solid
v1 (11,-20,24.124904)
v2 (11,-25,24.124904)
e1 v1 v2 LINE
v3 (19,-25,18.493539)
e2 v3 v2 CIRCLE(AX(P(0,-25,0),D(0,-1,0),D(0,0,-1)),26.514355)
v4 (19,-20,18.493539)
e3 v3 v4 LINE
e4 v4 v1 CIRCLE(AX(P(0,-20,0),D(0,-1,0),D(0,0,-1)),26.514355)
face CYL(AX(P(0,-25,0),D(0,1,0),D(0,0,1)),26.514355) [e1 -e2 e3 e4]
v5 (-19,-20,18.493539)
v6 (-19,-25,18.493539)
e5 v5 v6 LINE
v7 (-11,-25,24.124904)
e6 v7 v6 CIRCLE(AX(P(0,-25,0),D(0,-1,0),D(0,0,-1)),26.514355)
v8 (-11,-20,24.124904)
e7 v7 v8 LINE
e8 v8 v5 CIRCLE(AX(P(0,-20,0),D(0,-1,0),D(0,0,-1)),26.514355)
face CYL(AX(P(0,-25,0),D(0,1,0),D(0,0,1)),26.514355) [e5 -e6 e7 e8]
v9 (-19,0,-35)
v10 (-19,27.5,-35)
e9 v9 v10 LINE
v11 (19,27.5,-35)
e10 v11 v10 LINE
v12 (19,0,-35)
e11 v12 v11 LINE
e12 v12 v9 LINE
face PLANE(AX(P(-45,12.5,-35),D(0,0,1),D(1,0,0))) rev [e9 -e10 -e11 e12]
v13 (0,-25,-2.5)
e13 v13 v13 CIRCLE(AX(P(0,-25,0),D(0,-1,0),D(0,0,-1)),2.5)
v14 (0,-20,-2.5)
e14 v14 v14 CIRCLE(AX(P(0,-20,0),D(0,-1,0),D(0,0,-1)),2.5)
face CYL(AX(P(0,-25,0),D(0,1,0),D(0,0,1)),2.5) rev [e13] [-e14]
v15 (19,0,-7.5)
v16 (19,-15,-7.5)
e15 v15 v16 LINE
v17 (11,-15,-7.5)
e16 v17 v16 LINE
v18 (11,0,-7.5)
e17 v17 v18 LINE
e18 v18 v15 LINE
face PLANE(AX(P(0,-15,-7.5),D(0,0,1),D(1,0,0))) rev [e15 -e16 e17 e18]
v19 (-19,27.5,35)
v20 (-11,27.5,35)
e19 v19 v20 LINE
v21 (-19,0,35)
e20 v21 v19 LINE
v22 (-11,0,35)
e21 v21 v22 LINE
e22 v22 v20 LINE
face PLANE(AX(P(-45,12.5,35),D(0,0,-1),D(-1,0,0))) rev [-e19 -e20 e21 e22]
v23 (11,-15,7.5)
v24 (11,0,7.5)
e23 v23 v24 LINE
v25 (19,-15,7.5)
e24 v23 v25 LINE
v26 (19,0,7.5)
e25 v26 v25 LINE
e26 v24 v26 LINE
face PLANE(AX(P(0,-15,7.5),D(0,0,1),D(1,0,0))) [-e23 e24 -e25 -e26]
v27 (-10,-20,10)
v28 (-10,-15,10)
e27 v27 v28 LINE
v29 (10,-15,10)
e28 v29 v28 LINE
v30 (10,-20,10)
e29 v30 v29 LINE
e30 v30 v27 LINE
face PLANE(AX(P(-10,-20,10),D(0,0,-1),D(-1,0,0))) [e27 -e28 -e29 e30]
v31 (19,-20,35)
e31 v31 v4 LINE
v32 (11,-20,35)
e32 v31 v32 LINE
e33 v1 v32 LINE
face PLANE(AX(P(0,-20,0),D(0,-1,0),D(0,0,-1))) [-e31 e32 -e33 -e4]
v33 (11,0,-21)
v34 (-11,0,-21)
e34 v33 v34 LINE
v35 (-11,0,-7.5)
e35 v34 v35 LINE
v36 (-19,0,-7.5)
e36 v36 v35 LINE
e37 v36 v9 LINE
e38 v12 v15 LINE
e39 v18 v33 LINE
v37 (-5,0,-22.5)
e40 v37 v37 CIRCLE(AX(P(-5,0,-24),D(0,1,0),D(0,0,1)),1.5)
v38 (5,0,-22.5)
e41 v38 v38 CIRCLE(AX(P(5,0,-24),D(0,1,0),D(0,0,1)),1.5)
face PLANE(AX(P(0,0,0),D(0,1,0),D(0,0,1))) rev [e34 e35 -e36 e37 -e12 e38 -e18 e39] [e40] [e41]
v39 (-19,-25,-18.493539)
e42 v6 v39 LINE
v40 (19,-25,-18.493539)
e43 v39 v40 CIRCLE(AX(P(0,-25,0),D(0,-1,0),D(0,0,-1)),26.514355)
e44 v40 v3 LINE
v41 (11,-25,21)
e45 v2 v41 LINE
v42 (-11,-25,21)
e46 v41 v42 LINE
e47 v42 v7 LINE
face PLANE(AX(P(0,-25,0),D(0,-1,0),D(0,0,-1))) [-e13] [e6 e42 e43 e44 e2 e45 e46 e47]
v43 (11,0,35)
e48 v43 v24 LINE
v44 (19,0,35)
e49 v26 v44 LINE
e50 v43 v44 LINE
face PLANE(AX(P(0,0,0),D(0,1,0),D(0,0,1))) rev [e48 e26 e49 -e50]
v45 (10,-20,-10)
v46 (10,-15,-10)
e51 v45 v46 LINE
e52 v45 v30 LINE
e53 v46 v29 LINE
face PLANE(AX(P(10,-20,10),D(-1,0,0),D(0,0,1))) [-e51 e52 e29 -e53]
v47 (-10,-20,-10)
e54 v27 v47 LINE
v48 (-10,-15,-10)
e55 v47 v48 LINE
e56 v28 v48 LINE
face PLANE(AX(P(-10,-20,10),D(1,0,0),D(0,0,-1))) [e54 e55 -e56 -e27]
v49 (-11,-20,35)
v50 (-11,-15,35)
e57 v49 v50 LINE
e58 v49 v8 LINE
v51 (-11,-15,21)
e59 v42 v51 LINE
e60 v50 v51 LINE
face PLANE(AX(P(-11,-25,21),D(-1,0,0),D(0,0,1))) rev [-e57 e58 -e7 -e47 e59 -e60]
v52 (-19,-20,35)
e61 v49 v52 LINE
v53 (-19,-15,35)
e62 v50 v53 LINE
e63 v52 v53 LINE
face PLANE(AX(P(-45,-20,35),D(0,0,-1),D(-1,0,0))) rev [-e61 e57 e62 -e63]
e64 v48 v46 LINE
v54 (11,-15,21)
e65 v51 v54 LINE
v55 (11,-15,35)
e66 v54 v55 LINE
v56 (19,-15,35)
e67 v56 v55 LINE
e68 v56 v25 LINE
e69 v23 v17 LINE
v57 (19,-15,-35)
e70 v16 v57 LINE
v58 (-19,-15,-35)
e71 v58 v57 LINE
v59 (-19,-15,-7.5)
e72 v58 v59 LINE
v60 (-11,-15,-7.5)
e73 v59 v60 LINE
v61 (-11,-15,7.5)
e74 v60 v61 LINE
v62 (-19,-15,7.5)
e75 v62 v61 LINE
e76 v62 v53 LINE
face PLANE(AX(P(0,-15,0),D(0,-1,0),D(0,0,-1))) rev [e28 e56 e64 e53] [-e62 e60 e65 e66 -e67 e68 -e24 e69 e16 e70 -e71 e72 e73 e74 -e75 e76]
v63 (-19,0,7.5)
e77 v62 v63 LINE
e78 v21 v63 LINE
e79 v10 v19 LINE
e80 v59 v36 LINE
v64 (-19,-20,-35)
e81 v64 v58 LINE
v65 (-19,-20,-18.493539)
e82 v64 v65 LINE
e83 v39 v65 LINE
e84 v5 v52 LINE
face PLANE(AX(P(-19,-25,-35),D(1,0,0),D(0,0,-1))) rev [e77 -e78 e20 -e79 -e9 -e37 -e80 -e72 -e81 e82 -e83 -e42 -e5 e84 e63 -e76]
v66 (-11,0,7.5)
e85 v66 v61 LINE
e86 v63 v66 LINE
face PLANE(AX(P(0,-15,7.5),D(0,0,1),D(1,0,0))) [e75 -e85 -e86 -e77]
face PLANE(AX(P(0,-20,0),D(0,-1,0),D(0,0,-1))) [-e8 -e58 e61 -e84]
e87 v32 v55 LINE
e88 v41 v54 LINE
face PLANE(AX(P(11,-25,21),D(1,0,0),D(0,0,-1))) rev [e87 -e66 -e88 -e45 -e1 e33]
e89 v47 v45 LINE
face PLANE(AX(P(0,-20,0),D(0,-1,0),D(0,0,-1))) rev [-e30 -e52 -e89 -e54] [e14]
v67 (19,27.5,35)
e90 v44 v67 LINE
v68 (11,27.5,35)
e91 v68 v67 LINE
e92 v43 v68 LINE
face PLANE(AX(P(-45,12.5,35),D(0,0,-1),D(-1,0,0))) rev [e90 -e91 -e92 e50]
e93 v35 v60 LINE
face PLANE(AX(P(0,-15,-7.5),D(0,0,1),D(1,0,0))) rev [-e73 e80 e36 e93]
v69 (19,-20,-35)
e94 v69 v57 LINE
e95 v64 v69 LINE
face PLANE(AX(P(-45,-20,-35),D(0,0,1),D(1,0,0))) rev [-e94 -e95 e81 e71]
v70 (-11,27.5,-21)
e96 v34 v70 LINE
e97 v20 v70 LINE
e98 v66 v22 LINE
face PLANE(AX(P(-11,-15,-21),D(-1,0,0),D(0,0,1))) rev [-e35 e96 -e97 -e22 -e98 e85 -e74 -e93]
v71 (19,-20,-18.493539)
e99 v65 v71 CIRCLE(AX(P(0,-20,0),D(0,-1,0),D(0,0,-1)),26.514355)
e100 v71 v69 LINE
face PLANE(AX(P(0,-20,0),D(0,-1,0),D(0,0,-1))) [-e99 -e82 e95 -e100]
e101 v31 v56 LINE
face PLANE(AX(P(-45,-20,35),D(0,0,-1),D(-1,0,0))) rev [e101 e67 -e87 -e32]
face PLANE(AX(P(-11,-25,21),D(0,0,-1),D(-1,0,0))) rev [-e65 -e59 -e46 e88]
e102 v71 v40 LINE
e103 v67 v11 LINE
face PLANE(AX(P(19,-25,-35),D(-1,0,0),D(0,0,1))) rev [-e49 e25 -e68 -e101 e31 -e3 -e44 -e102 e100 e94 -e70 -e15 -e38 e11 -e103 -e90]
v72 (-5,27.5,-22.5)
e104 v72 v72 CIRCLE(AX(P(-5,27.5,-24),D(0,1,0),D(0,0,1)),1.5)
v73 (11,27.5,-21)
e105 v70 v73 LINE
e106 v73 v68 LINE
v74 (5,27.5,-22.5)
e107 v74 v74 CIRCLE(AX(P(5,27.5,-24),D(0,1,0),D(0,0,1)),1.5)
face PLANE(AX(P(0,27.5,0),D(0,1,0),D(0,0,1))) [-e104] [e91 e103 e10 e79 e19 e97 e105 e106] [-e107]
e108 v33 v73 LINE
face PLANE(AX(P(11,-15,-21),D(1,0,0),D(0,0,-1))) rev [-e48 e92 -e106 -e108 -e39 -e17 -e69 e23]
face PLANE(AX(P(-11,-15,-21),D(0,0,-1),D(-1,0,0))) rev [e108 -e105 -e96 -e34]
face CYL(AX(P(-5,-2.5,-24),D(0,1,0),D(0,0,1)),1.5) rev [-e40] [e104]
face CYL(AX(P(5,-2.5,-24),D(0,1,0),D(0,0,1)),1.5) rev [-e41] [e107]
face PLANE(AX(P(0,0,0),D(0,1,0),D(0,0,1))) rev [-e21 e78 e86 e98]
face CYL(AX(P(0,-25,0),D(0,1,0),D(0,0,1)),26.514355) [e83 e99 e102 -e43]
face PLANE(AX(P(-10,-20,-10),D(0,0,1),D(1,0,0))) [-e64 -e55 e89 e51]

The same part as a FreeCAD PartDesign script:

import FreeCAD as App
import Part
import Sketcher

V = App.Vector
Q = App.Units.Quantity


def add_polygon(sketch, points):
    """Adds a closed chain of lines whose ends are joined by coincident constraints."""
    first, n = sketch.GeometryCount, len(points)
    for a, b in zip(points, points[1:] + points[:1]):
        sketch.addGeometry(Part.LineSegment(App.Vector(*a, 0), App.Vector(*b, 0)), False)
    for i in range(n):
        sketch.addConstraint(Sketcher.Constraint("Coincident", first + i, 2, first + (i + 1) % n, 1))

doc = App.newDocument("Part")
body = doc.addObject("PartDesign::Body", "Body")

# Sketch on XZ plane
sketch1 = body.newObject("Sketcher::SketchObject", "Sketch")
sketch1.AttachmentSupport = (doc.getObject("XZ_Plane"), [""])
sketch1.MapMode = "FlatFace"
add_polygon(sketch1, [(-45, -35), (-45, 35), (45, 35), (45, -35)])  # lines 0-3
sketch1.addConstraint([
    Sketcher.Constraint("Vertical", 0),
    Sketcher.Constraint("Horizontal", 1),
    Sketcher.Constraint("Vertical", 2),
    Sketcher.Constraint("Horizontal", 3),
    Sketcher.Constraint("Symmetric", 0, 2, 2, 2, -1, 1),
    Sketcher.Constraint("DistanceX", 1, 1, 1, 2, Q("90 mm")),
    Sketcher.Constraint("DistanceY", 0, 1, 0, 2, Q("70 mm")),
])
pad1 = body.newObject("PartDesign::Pad", "Pad")
pad1.Profile = sketch1
pad1.Length = 12.5
pad1.Reversed = True

# Sketch on XZ plane
sketch2 = body.newObject("Sketcher::SketchObject", "Sketch001")
sketch2.AttachmentSupport = (doc.getObject("XZ_Plane"), [""])
sketch2.MapMode = "FlatFace"
add_polygon(sketch2, [(-45, 8), (-45, -8), (45, -8), (45, 8)])  # lines 0-3
sketch2.addConstraint([
    Sketcher.Constraint("Vertical", 0),
    Sketcher.Constraint("Horizontal", 1),
    Sketcher.Constraint("Vertical", 2),
    Sketcher.Constraint("Horizontal", 3),
    Sketcher.Constraint("Symmetric", 0, 2, 2, 2, -1, 1),
    Sketcher.Constraint("DistanceX", 1, 1, 1, 2, Q("90 mm")),
    Sketcher.Constraint("DistanceY", 0, 2, 0, 1, Q("15 mm")),
])
pad2 = body.newObject("PartDesign::Pad", "Pad001")
pad2.Profile = sketch2
pad2.Length = 15

# Sketch on XZ plane
sketch3 = body.newObject("Sketcher::SketchObject", "Sketch002")
sketch3.AttachmentSupport = (doc.getObject("XZ_Plane"), [""])
sketch3.MapMode = "FlatFace"
sketch3.AttachmentOffset = App.Placement(V(0, 0, -12.5), App.Rotation())
sketch3.addGeometry(Part.Circle(V(-5, -24, 0), V(0, 0, 1), 1.2), False)  # 0
sketch3.addGeometry(Part.Circle(V(5, -24, 0), V(0, 0, 1), 1.2), False)  # 1
sketch3.addGeometry(Part.Circle(V(5, 24, 0), V(0, 0, 1), 1.2), False)  # 2
sketch3.addGeometry(Part.Circle(V(-5, 24, 0), V(0, 0, 1), 1.2), False)  # 3
add_polygon(sketch3, [(-11, -21), (-11, 21), (11, 21), (11, -21)])  # lines 4-7
sketch3.addConstraint([
    Sketcher.Constraint("Vertical", 4),
    Sketcher.Constraint("Horizontal", 5),
    Sketcher.Constraint("Vertical", 6),
    Sketcher.Constraint("Horizontal", 7),
    Sketcher.Constraint("Equal", 0, 1),
    Sketcher.Constraint("Equal", 1, 2),
    Sketcher.Constraint("Equal", 2, 3),
    Sketcher.Constraint("Symmetric", 0, 3, 2, 3, -1, 1),
    Sketcher.Constraint("Symmetric", 1, 3, 3, 3, -1, 1),
    Sketcher.Constraint("Symmetric", 4, 2, 6, 2, -1, 1),
    Sketcher.Constraint("Symmetric", 0, 3, 1, 3, -2),
    Sketcher.Constraint("Diameter", 0, Q("2.5 mm")),
    Sketcher.Constraint("DistanceX", 5, 1, 5, 2, Q("22 mm")),
    Sketcher.Constraint("DistanceY", 4, 1, 4, 2, Q("42 mm")),
    Sketcher.Constraint("DistanceX", 0, 3, -1, 1, Q("5 mm")),
    Sketcher.Constraint("DistanceY", 0, 3, -1, 1, Q("24 mm")),
])
pocket1 = body.newObject("PartDesign::Pocket", "Pocket")
pocket1.Profile = sketch3
pocket1.Type = "ThroughAll"
pocket1.Reversed = True

# Sketch on XZ plane
sketch4 = body.newObject("Sketcher::SketchObject", "Sketch003")
sketch4.AttachmentSupport = (doc.getObject("XZ_Plane"), [""])
sketch4.MapMode = "FlatFace"
sketch4.AttachmentOffset = App.Placement(V(0, 0, 15), App.Rotation())
add_polygon(sketch4, [(-45, 35), (-45, -35), (45, -35), (45, 35)])  # lines 0-3
add_polygon(sketch4, [(10, -10), (-10, -10), (-10, 10), (10, 10)])  # lines 4-7
sketch4.addConstraint([
    Sketcher.Constraint("Vertical", 0),
    Sketcher.Constraint("Horizontal", 1),
    Sketcher.Constraint("Vertical", 2),
    Sketcher.Constraint("Horizontal", 3),
    Sketcher.Constraint("Horizontal", 4),
    Sketcher.Constraint("Vertical", 5),
    Sketcher.Constraint("Horizontal", 6),
    Sketcher.Constraint("Vertical", 7),
    Sketcher.Constraint("Symmetric", 0, 2, 2, 2, -1, 1),
    Sketcher.Constraint("Symmetric", 4, 2, 6, 2, -1, 1),
    Sketcher.Constraint("Equal", 6, 5),
    Sketcher.Constraint("DistanceX", 1, 1, 1, 2, Q("90 mm")),
    Sketcher.Constraint("DistanceX", 4, 2, 4, 1, Q("20 mm")),
    Sketcher.Constraint("DistanceY", 0, 2, 0, 1, Q("70 mm")),
])
pad3 = body.newObject("PartDesign::Pad", "Pad002")
pad3.Profile = sketch4
pad3.Length = 5

# Sketch on XZ plane
sketch5 = body.newObject("Sketcher::SketchObject", "Sketch004")
sketch5.AttachmentSupport = (doc.getObject("XZ_Plane"), [""])
sketch5.MapMode = "FlatFace"
sketch5.AttachmentOffset = App.Placement(V(0, 0, 20), App.Rotation())
sketch5.addGeometry([
    Part.Circle(V(0, 0, 0), V(0, 0, 1), 26.5),
    Part.Circle(V(0, 0, 0), V(0, 0, 1), 2.5),
], False)
sketch5.addConstraint([
    Sketcher.Constraint("Coincident", 0, 3, -1, 1),
    Sketcher.Constraint("Coincident", 1, 3, -1, 1),
    Sketcher.Constraint("Diameter", 1, Q("5 mm")),
    Sketcher.Constraint("Diameter", 0, Q("53.028709 mm")),
])
pad4 = body.newObject("PartDesign::Pad", "Pad003")
pad4.Profile = sketch5
pad4.Length = 5

# Sketch on XZ plane
sketch6 = body.newObject("Sketcher::SketchObject", "Sketch005")
sketch6.AttachmentSupport = (doc.getObject("XZ_Plane"), [""])
sketch6.MapMode = "FlatFace"
sketch6.AttachmentOffset = App.Placement(V(0, 0, -12.5), App.Rotation())
add_polygon(sketch6, [(-11, 21), (-11, 35), (11, 35), (11, 21)])  # lines 0-3
sketch6.addConstraint([
    Sketcher.Constraint("Vertical", 0),
    Sketcher.Constraint("Horizontal", 1),
    Sketcher.Constraint("Vertical", 2),
    Sketcher.Constraint("Horizontal", 3),
    Sketcher.Constraint("DistanceX", 1, 1, 1, 2, Q("22 mm")),
    Sketcher.Constraint("DistanceY", 0, 1, 0, 2, Q("14 mm")),
    Sketcher.Constraint("DistanceX", 0, 2, -1, 1, Q("11 mm")),
    Sketcher.Constraint("DistanceY", -1, 1, 0, 2, Q("35 mm")),
])
pocket2 = body.newObject("PartDesign::Pocket", "Pocket001")
pocket2.Profile = sketch6
pocket2.Type = "ThroughAll"
pocket2.Reversed = True

# Sketch on XZ plane
sketch7 = body.newObject("Sketcher::SketchObject", "Sketch006")
sketch7.AttachmentSupport = (doc.getObject("XZ_Plane"), [""])
sketch7.MapMode = "FlatFace"
sketch7.AttachmentOffset = App.Placement(V(0, 0, -12.5), App.Rotation())
add_polygon(sketch7, [(-45, -35), (-45, 35), (-19, 35), (-19, -35)])  # lines 0-3
add_polygon(sketch7, [(19, -35), (19, 35), (45, 35), (45, -35)])  # lines 4-7
sketch7.addConstraint([
    Sketcher.Constraint("Vertical", 0),
    Sketcher.Constraint("Horizontal", 1),
    Sketcher.Constraint("Vertical", 2),
    Sketcher.Constraint("Horizontal", 3),
    Sketcher.Constraint("Vertical", 4),
    Sketcher.Constraint("Horizontal", 5),
    Sketcher.Constraint("Vertical", 6),
    Sketcher.Constraint("Horizontal", 7),
    Sketcher.Constraint("Symmetric", 2, 2, 4, 2, -1, 1),
    Sketcher.Constraint("Symmetric", 0, 2, 6, 2, -1, 1),
    Sketcher.Constraint("Horizontal", 1, 2, 4, 2),
    Sketcher.Constraint("DistanceX", 1, 1, 1, 2, Q("26 mm")),
    Sketcher.Constraint("DistanceY", 0, 1, 0, 2, Q("70 mm")),
    Sketcher.Constraint("DistanceX", 0, 2, -1, 1, Q("45 mm")),
])
pocket3 = body.newObject("PartDesign::Pocket", "Pocket002")
pocket3.Profile = sketch7
pocket3.Type = "ThroughAll"
pocket3.Reversed = True

# Sketch on XZ plane
sketch8 = body.newObject("Sketcher::SketchObject", "Sketch007")
sketch8.AttachmentSupport = (doc.getObject("XZ_Plane"), [""])
sketch8.MapMode = "FlatFace"
sketch8.AttachmentOffset = App.Placement(V(0, 0, -27.5), App.Rotation())
add_polygon(sketch8, [(19, -35), (-19, -35), (-19, 35), (-11, 35), (-11, -21), (11, -21), (11, 35), (19, 35)])  # lines 0-7
sketch8.addGeometry(Part.Circle(V(-5, -24, 0), V(0, 0, 1), 1.2), False)  # 8
sketch8.addGeometry(Part.Circle(V(5, -24, 0), V(0, 0, 1), 1.2), False)  # 9
sketch8.addConstraint([
    Sketcher.Constraint("Horizontal", 0),
    Sketcher.Constraint("Vertical", 1),
    Sketcher.Constraint("Horizontal", 2),
    Sketcher.Constraint("Vertical", 3),
    Sketcher.Constraint("Horizontal", 4),
    Sketcher.Constraint("Vertical", 5),
    Sketcher.Constraint("Horizontal", 6),
    Sketcher.Constraint("Vertical", 7),
    Sketcher.Constraint("Equal", 8, 9),
    Sketcher.Constraint("Symmetric", 0, 2, 6, 2, -1, 1),
    Sketcher.Constraint("Symmetric", 8, 3, 9, 3, -2),
    Sketcher.Constraint("Symmetric", 2, 2, 5, 2, -2),
    Sketcher.Constraint("Diameter", 8, Q("2.5 mm")),
    Sketcher.Constraint("DistanceX", 0, 2, 0, 1, Q("38 mm")),
    Sketcher.Constraint("DistanceX", 2, 1, 2, 2, Q("8 mm")),
    Sketcher.Constraint("DistanceY", 1, 1, 1, 2, Q("70 mm")),
    Sketcher.Constraint("DistanceY", 3, 2, 3, 1, Q("56 mm")),
    Sketcher.Constraint("DistanceX", 8, 3, -1, 1, Q("5 mm")),
    Sketcher.Constraint("DistanceY", 8, 3, -1, 1, Q("24 mm")),
])
pad5 = body.newObject("PartDesign::Pad", "Pad004")
pad5.Profile = sketch8
pad5.Length = 15

# Sketch on XZ plane
sketch9 = body.newObject("Sketcher::SketchObject", "Sketch008")
sketch9.AttachmentSupport = (doc.getObject("XZ_Plane"), [""])
sketch9.MapMode = "FlatFace"
sketch9.AttachmentOffset = App.Placement(V(0, 0, -27.5), App.Rotation())
sketch9.addGeometry([
    Part.Circle(V(-5, -24, 0), V(0, 0, 1), 1.5),
    Part.Circle(V(5, -24, 0), V(0, 0, 1), 1.5),
], False)
sketch9.addConstraint([
    Sketcher.Constraint("Equal", 0, 1),
    Sketcher.Constraint("Symmetric", 0, 3, 1, 3, -2),
    Sketcher.Constraint("Diameter", 0, Q("3 mm")),
    Sketcher.Constraint("DistanceX", 0, 3, -1, 1, Q("5 mm")),
    Sketcher.Constraint("DistanceY", 0, 3, -1, 1, Q("24 mm")),
])
pocket4 = body.newObject("PartDesign::Pocket", "Pocket003")
pocket4.Profile = sketch9
pocket4.Length = 30
pocket4.Reversed = True

doc.recompute()
